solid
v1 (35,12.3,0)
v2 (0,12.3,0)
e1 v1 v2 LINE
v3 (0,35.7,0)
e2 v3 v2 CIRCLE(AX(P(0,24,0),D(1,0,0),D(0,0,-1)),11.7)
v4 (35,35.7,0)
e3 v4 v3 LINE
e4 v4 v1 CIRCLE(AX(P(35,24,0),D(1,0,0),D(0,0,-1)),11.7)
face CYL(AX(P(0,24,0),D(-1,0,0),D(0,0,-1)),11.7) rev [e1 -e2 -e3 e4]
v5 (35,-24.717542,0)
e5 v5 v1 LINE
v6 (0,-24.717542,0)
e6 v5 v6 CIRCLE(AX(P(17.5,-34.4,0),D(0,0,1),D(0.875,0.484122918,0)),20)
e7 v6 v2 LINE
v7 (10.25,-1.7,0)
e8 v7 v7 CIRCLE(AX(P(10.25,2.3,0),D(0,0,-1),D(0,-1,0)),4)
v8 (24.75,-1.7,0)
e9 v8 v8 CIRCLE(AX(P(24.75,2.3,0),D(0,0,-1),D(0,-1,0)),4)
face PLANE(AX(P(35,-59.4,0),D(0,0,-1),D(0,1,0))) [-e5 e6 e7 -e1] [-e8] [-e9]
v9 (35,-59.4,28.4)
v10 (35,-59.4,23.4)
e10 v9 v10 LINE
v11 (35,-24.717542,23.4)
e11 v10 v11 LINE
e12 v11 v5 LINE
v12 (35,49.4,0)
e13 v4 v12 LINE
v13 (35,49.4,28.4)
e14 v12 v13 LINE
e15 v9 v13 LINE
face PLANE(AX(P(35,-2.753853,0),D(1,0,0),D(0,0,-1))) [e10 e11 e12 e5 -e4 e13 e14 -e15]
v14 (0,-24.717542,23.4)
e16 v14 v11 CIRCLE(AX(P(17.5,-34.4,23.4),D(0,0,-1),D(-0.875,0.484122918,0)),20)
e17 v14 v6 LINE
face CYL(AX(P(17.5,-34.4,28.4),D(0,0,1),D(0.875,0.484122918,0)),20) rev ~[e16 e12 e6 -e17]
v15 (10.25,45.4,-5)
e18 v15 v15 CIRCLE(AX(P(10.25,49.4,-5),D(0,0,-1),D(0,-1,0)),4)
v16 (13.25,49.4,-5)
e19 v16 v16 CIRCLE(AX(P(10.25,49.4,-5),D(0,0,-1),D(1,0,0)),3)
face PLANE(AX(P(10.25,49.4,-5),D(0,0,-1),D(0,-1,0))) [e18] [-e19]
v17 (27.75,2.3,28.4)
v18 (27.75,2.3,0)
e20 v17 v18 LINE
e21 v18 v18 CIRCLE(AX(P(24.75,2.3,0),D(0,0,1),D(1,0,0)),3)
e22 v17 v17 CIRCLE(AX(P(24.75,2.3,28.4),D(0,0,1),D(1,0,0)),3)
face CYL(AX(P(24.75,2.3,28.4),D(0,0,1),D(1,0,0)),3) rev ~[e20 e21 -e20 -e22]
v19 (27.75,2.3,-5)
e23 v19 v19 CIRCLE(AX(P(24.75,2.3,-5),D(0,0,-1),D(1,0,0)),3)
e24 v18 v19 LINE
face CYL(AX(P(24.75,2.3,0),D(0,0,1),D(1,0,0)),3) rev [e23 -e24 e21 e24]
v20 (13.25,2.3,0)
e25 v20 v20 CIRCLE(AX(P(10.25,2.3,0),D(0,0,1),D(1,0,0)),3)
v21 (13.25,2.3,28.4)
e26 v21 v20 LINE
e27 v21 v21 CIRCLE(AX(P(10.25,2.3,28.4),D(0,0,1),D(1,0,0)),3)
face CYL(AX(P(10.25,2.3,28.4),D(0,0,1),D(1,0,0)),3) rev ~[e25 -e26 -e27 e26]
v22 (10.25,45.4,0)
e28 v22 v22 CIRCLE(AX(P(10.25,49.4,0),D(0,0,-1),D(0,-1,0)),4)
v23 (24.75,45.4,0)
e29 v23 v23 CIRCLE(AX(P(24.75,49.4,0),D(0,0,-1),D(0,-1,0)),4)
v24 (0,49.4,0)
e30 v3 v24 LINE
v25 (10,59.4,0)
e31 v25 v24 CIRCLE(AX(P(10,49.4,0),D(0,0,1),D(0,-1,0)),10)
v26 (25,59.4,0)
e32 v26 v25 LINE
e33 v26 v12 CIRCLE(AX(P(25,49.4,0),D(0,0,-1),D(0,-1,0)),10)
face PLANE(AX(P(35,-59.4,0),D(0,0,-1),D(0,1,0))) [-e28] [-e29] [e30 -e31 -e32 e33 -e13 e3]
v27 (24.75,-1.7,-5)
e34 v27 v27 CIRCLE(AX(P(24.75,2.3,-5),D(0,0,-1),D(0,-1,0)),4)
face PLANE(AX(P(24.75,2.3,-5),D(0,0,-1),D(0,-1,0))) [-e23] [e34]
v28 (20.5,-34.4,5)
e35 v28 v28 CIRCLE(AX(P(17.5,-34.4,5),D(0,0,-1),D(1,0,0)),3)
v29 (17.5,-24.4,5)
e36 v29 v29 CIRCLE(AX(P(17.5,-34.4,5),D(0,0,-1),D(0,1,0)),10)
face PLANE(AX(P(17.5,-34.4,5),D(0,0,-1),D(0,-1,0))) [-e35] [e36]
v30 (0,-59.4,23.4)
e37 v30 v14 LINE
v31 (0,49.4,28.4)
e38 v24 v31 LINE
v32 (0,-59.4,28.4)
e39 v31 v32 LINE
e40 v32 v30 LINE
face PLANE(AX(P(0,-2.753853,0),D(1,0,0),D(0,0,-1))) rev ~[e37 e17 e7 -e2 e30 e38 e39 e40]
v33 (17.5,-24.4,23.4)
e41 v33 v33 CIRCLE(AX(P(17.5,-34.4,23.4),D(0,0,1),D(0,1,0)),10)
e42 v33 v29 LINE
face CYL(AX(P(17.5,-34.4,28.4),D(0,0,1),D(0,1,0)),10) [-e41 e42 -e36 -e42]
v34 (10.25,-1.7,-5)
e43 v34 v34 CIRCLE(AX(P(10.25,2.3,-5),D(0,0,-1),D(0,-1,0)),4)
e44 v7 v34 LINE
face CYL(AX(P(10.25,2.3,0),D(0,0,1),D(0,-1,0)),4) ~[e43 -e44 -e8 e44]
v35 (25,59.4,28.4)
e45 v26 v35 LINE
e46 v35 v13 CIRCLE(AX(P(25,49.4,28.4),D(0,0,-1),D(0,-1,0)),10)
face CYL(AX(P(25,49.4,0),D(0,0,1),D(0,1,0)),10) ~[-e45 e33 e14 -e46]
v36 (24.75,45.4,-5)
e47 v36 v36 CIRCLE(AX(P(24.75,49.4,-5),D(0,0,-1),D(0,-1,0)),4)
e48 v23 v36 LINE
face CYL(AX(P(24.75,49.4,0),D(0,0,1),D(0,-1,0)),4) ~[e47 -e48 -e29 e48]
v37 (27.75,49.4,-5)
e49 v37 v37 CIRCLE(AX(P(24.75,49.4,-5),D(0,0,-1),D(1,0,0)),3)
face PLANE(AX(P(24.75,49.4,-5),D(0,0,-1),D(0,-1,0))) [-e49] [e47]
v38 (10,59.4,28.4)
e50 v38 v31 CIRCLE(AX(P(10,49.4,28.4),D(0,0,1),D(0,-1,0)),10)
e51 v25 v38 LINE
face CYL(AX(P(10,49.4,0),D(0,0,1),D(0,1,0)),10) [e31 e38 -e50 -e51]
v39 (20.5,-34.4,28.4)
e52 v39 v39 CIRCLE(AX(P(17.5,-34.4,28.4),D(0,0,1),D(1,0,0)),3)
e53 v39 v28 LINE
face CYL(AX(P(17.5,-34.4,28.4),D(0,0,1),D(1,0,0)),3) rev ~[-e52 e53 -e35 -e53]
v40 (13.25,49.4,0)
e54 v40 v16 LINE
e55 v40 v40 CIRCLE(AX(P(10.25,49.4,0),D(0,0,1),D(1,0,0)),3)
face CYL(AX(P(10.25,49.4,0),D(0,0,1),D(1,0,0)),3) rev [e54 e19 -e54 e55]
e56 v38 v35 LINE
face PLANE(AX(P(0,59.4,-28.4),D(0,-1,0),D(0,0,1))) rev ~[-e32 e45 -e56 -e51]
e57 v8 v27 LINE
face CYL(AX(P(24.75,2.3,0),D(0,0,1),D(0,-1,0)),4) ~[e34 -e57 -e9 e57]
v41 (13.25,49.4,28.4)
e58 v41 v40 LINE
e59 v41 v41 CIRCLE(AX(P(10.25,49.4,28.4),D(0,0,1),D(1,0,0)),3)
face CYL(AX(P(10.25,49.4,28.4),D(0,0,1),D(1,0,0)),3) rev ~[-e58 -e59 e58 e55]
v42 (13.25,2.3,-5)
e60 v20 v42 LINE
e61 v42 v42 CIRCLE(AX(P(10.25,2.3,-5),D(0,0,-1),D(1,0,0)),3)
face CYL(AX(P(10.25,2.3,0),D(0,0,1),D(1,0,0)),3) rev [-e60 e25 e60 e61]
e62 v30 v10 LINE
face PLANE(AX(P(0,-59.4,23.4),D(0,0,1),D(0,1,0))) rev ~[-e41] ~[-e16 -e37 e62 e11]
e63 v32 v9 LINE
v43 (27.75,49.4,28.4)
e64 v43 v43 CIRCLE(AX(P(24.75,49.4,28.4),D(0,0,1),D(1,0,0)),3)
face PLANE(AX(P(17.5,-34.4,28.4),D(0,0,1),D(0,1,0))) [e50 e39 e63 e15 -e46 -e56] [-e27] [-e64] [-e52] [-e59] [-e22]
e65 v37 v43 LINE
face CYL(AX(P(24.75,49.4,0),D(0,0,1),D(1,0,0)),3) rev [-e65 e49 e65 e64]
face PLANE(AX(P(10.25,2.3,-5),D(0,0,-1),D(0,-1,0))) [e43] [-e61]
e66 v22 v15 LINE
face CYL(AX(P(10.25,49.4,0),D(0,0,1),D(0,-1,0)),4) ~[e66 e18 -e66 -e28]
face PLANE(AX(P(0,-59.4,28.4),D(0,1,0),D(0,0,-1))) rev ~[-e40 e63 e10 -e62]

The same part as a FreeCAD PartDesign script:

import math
import FreeCAD as App
import Part
import Sketcher
Q = App.Units.Quantity


def edges_at(feature, points):
    """Names of the edges that pass closest to the given points."""
    edges = feature.Shape.Edges
    near = lambda p: min(range(len(edges)), key=lambda i: edges[i].distToShape(Part.Vertex(*p))[0])
    return sorted({f"Edge{near(p) + 1}" for p in points})


def add_polygon(sketch, points):
    """Adds a closed chain of lines whose ends are joined by coincident constraints."""
    first, n = sketch.GeometryCount, len(points)
    for a, b in zip(points, points[1:] + points[:1]):
        sketch.addGeometry(Part.LineSegment(App.Vector(*a, 0), App.Vector(*b, 0)), False)
    for i in range(n):
        sketch.addConstraint(Sketcher.Constraint("Coincident", first + i, 2, first + (i + 1) % n, 1))

doc = App.newDocument("Part")
body = doc.addObject("PartDesign::Body", "Body")

sketch1 = body.newObject("Sketcher::SketchObject", "Sketch")
sketch1.AttachmentSupport = (doc.getObject("YZ_Plane"), [""])
sketch1.MapMode = "FlatFace"
add_polygon(sketch1, [(-59, 28), (-59, 23), (-14, 23), (-14, -23), (-59, -23), (-59, -28), (59, -28), (59, 28)])
sketch1.addGeometry(Part.Circle(App.Vector(24, 0, 0), App.Vector(0, 0, 1), 12), False)
sketch1.addConstraint(Sketcher.Constraint("Vertical", 0))
sketch1.addConstraint(Sketcher.Constraint("Horizontal", 1))
sketch1.addConstraint(Sketcher.Constraint("Vertical", 2))
sketch1.addConstraint(Sketcher.Constraint("Horizontal", 3))
sketch1.addConstraint(Sketcher.Constraint("Vertical", 4))
sketch1.addConstraint(Sketcher.Constraint("Horizontal", 5))
sketch1.addConstraint(Sketcher.Constraint("Vertical", 6))
sketch1.addConstraint(Sketcher.Constraint("Horizontal", 7))
sketch1.addConstraint(Sketcher.Constraint("Symmetric", 4, 2, 6, 2, -1, 1))
sketch1.addConstraint(Sketcher.Constraint("Symmetric", 0, 2, 3, 2, -1))
sketch1.addConstraint(Sketcher.Constraint("PointOnObject", 8, 3, -1))
sketch1.addConstraint(Sketcher.Constraint("Diameter", 8, Q("23.4 mm")))
sketch1.addConstraint(Sketcher.Constraint("DistanceX", 1, 1, 1, 2, Q("45 mm")))
sketch1.addConstraint(Sketcher.Constraint("DistanceY", 0, 2, 0, 1, Q("5 mm")))
sketch1.addConstraint(Sketcher.Constraint("DistanceX", 5, 1, 5, 2, Q("118.8 mm")))
sketch1.addConstraint(Sketcher.Constraint("DistanceY", 2, 2, 2, 1, Q("46.8 mm")))
sketch1.addConstraint(Sketcher.Constraint("DistanceX", -1, 1, 8, 3, Q("24 mm")))
pad1 = body.newObject("PartDesign::Pad", "Pad")
pad1.Profile = sketch1
pad1.Length = 35

sketch2 = body.newObject("Sketcher::SketchObject", "Sketch001")
sketch2.AttachmentSupport = (doc.getObject("XY_Plane"), [""])
sketch2.MapMode = "FlatFace"
sketch2.AttachmentOffset = App.Placement(App.Vector(0, 0, 28.4), App.Rotation())
sketch2.addGeometry(Part.Circle(App.Vector(18, -34, 0), App.Vector(0, 0, 1), 10), False)
sketch2.addGeometry(Part.LineSegment(App.Vector(0, -13, 0), App.Vector(0, -25, 0)), False)
sketch2.addGeometry(Part.ArcOfCircle(Part.Circle(App.Vector(18, -34, 0), App.Vector(0, 0, 1), 20), math.radians(29), math.radians(151)), False)
sketch2.addGeometry(Part.LineSegment(App.Vector(35, -25, 0), App.Vector(35, -13, 0)), False)
sketch2.addGeometry(Part.LineSegment(App.Vector(35, -13, 0), App.Vector(0, -13, 0)), False)
sketch2.addConstraint(Sketcher.Constraint("Coincident", 1, 2, 2, 2))
sketch2.addConstraint(Sketcher.Constraint("Coincident", 2, 1, 3, 1))
sketch2.addConstraint(Sketcher.Constraint("Coincident", 3, 2, 4, 1))
sketch2.addConstraint(Sketcher.Constraint("Coincident", 4, 2, 1, 1))
sketch2.addConstraint(Sketcher.Constraint("Vertical", 1))
sketch2.addConstraint(Sketcher.Constraint("Vertical", 3))
sketch2.addConstraint(Sketcher.Constraint("Horizontal", 4))
sketch2.addConstraint(Sketcher.Constraint("Coincident", 2, 3, 0, 3))
sketch2.addConstraint(Sketcher.Constraint("PointOnObject", 1, 2, -2))
sketch2.addConstraint(Sketcher.Constraint("Horizontal", 1, 2, 2, 1))
sketch2.addConstraint(Sketcher.Constraint("Diameter", 0, Q("20 mm")))
sketch2.addConstraint(Sketcher.Constraint("Radius", 2, Q("20 mm")))
sketch2.addConstraint(Sketcher.Constraint("DistanceX", 4, 2, 4, 1, Q("35 mm")))
sketch2.addConstraint(Sketcher.Constraint("DistanceY", 0, 3, 3, 2, Q("21 mm")))
sketch2.addConstraint(Sketcher.Constraint("DistanceY", 0, 3, -1, 1, Q("34.4 mm")))
pad2 = body.newObject("PartDesign::Pad", "Pad001")
pad2.Profile = sketch2
pad2.Length = 51.8
pad2.Reversed = True

sketch3 = body.newObject("Sketcher::SketchObject", "Sketch002")
sketch3.AttachmentSupport = (doc.getObject("XY_Plane"), [""])
sketch3.MapMode = "FlatFace"
sketch3.AttachmentOffset = App.Placement(App.Vector(0, 0, 28.4), App.Rotation())
sketch3.addGeometry(Part.Circle(App.Vector(10.2, 49.4, 0), App.Vector(0, 0, 1), 3), False)
sketch3.addGeometry(Part.Circle(App.Vector(17.5, -34.4, 0), App.Vector(0, 0, 1), 3), False)
sketch3.addGeometry(Part.Circle(App.Vector(10.2, 2.3, 0), App.Vector(0, 0, 1), 3), False)
sketch3.addGeometry(Part.Circle(App.Vector(24.8, 2.3, 0), App.Vector(0, 0, 1), 3), False)
sketch3.addGeometry(Part.Circle(App.Vector(24.8, 49.4, 0), App.Vector(0, 0, 1), 3), False)
sketch3.addConstraint(Sketcher.Constraint("Equal", 0, 1))
sketch3.addConstraint(Sketcher.Constraint("Equal", 1, 2))
sketch3.addConstraint(Sketcher.Constraint("Equal", 2, 3))
sketch3.addConstraint(Sketcher.Constraint("Equal", 3, 4))
sketch3.addConstraint(Sketcher.Constraint("Horizontal", 2, 3, 3, 3))
sketch3.addConstraint(Sketcher.Constraint("Horizontal", 0, 3, 4, 3))
sketch3.addConstraint(Sketcher.Constraint("Vertical", 0, 3, 2, 3))
sketch3.addConstraint(Sketcher.Constraint("Vertical", 3, 3, 4, 3))
sketch3.addConstraint(Sketcher.Constraint("Diameter", 0, Q("6 mm")))
sketch3.addConstraint(Sketcher.Constraint("DistanceY", -1, 1, 0, 3, Q("49.4 mm")))
sketch3.addConstraint(Sketcher.Constraint("DistanceX", -1, 1, 1, 3, Q("17.5 mm")))
sketch3.addConstraint(Sketcher.Constraint("DistanceY", 1, 3, -1, 1, Q("34.4 mm")))
sketch3.addConstraint(Sketcher.Constraint("DistanceY", -1, 1, 2, 3, Q("2.3 mm")))
sketch3.addConstraint(Sketcher.Constraint("DistanceX", 2, 3, 3, 3, Q("14.5 mm")))
sketch3.addConstraint(Sketcher.Constraint("DistanceX", -1, 1, 0, 3, Q("10.25 mm")))
pocket1 = body.newObject("PartDesign::Pocket", "Pocket")
pocket1.Profile = sketch3
pocket1.Type = "ThroughAll"
pocket1.Midplane = True

sketch4 = body.newObject("Sketcher::SketchObject", "Sketch003")
sketch4.AttachmentSupport = (doc.getObject("YZ_Plane"), [""])
sketch4.MapMode = "FlatFace"
sketch4.AttachmentOffset = App.Placement(App.Vector(0, 0, 35), App.Rotation())
add_polygon(sketch4, [(59, 0), (-59, 0), (-59, -28), (59, -28)])
sketch4.addConstraint(Sketcher.Constraint("Horizontal", 0))
sketch4.addConstraint(Sketcher.Constraint("Vertical", 1))
sketch4.addConstraint(Sketcher.Constraint("Horizontal", 2))
sketch4.addConstraint(Sketcher.Constraint("Vertical", 3))
sketch4.addConstraint(Sketcher.Constraint("Symmetric", 0, 2, 3, 2, -1, 1))
sketch4.addConstraint(Sketcher.Constraint("DistanceX", 0, 2, 0, 1, Q("118.8 mm")))
sketch4.addConstraint(Sketcher.Constraint("DistanceY", 1, 2, 1, 1, Q("28.4 mm")))
pocket2 = body.newObject("PartDesign::Pocket", "Pocket001")
pocket2.Profile = sketch4
pocket2.Type = "ThroughAll"

sketch5 = body.newObject("Sketcher::SketchObject", "Sketch004")
sketch5.AttachmentSupport = (doc.getObject("XY_Plane"), [""])
sketch5.MapMode = "FlatFace"
sketch5.addGeometry(Part.Circle(App.Vector(17.5, -34.4, 0), App.Vector(0, 0, 1), 10), False)
sketch5.addGeometry(Part.Circle(App.Vector(17.5, -34.4, 0), App.Vector(0, 0, 1), 3), False)
sketch5.addConstraint(Sketcher.Constraint("Coincident", 1, 3, 0, 3))
sketch5.addConstraint(Sketcher.Constraint("Diameter", 0, Q("20 mm")))
sketch5.addConstraint(Sketcher.Constraint("Diameter", 1, Q("6 mm")))
sketch5.addConstraint(Sketcher.Constraint("DistanceX", -1, 1, 0, 3, Q("17.5 mm")))
sketch5.addConstraint(Sketcher.Constraint("DistanceY", 0, 3, -1, 1, Q("34.4 mm")))
pocket3 = body.newObject("PartDesign::Pocket", "Pocket002")
pocket3.Profile = sketch5
pocket3.Length = 5
pocket3.Reversed = True

sketch6 = body.newObject("Sketcher::SketchObject", "Sketch005")
sketch6.AttachmentSupport = (doc.getObject("XY_Plane"), [""])
sketch6.MapMode = "FlatFace"
sketch6.addGeometry(Part.Circle(App.Vector(24.8, 49.4, 0), App.Vector(0, 0, 1), 4), False)
sketch6.addGeometry(Part.Circle(App.Vector(24.8, 49.4, 0), App.Vector(0, 0, 1), 3), False)
sketch6.addGeometry(Part.Circle(App.Vector(10.2, 49.4, 0), App.Vector(0, 0, 1), 4), False)
sketch6.addGeometry(Part.Circle(App.Vector(10.2, 49.4, 0), App.Vector(0, 0, 1), 3), False)
sketch6.addGeometry(Part.Circle(App.Vector(24.8, 2.3, 0), App.Vector(0, 0, 1), 4), False)
sketch6.addGeometry(Part.Circle(App.Vector(24.8, 2.3, 0), App.Vector(0, 0, 1), 3), False)
sketch6.addGeometry(Part.Circle(App.Vector(10.2, 2.3, 0), App.Vector(0, 0, 1), 4), False)
sketch6.addGeometry(Part.Circle(App.Vector(10.2, 2.3, 0), App.Vector(0, 0, 1), 3), False)
sketch6.addConstraint(Sketcher.Constraint("Coincident", 1, 3, 0, 3))
sketch6.addConstraint(Sketcher.Constraint("Coincident", 3, 3, 2, 3))
sketch6.addConstraint(Sketcher.Constraint("Coincident", 5, 3, 4, 3))
sketch6.addConstraint(Sketcher.Constraint("Coincident", 7, 3, 6, 3))
sketch6.addConstraint(Sketcher.Constraint("Equal", 0, 2))
sketch6.addConstraint(Sketcher.Constraint("Equal", 1, 3))
sketch6.addConstraint(Sketcher.Constraint("Equal", 2, 4))
sketch6.addConstraint(Sketcher.Constraint("Equal", 3, 5))
sketch6.addConstraint(Sketcher.Constraint("Equal", 4, 6))
sketch6.addConstraint(Sketcher.Constraint("Equal", 5, 7))
sketch6.addConstraint(Sketcher.Constraint("Horizontal", 1, 3, 2, 3))
sketch6.addConstraint(Sketcher.Constraint("Horizontal", 5, 3, 6, 3))
sketch6.addConstraint(Sketcher.Constraint("Vertical", 1, 3, 4, 3))
sketch6.addConstraint(Sketcher.Constraint("Vertical", 3, 3, 6, 3))
sketch6.addConstraint(Sketcher.Constraint("Diameter", 0, Q("8 mm")))
sketch6.addConstraint(Sketcher.Constraint("Diameter", 1, Q("6 mm")))
sketch6.addConstraint(Sketcher.Constraint("DistanceY", -1, 1, 0, 3, Q("49.4 mm")))
sketch6.addConstraint(Sketcher.Constraint("DistanceY", -1, 1, 4, 3, Q("2.3 mm")))
sketch6.addConstraint(Sketcher.Constraint("DistanceX", 2, 3, 0, 3, Q("14.5 mm")))
sketch6.addConstraint(Sketcher.Constraint("DistanceX", -1, 1, 0, 3, Q("24.75 mm")))
pad3 = body.newObject("PartDesign::Pad", "Pad002")
pad3.Profile = sketch6
pad3.Length = 5
pad3.Reversed = True
doc.recompute()

fillet = body.newObject("PartDesign::Fillet", "Fillet")
fillet.Base = (pad3, edges_at(pad3, [(0, 59.4, 14.2), (35, 59.4, 14.2)]))
fillet.Radius = 10

doc.recompute()
